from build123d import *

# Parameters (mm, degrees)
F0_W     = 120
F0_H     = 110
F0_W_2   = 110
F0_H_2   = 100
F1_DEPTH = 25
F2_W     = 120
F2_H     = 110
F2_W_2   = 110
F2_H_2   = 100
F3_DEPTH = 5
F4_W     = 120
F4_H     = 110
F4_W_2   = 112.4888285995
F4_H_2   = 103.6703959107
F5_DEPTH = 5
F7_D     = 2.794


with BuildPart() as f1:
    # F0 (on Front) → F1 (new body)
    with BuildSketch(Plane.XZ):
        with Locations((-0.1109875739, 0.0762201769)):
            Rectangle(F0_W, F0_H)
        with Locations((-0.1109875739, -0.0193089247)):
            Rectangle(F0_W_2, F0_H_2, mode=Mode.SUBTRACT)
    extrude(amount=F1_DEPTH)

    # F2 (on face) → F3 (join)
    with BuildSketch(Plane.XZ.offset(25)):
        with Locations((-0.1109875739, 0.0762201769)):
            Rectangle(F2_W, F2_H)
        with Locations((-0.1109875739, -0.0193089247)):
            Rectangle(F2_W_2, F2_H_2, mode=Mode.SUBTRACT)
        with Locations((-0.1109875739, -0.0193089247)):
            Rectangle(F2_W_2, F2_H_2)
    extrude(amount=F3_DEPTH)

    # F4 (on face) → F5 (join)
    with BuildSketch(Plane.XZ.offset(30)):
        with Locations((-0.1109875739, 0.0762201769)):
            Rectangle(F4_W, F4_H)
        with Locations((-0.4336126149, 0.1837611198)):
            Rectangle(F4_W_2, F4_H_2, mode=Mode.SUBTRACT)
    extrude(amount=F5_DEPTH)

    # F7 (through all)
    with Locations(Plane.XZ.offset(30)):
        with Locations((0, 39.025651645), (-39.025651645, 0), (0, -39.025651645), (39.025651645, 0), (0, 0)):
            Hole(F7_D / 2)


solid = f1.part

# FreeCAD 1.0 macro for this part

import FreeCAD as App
import Part
import Sketcher
Q = App.Units.Quantity


def add_polygon(sketch, points):
    """Adds a closed chain of lines whose ends are joined by coincident constraints."""
    first, n = sketch.GeometryCount, len(points)
    for a, b in zip(points, points[1:] + points[:1]):
        sketch.addGeometry(Part.LineSegment(App.Vector(*a, 0), App.Vector(*b, 0)), False)
    for i in range(n):
        sketch.addConstraint(Sketcher.Constraint("Coincident", first + i, 2, first + (i + 1) % n, 1))

doc = App.newDocument("Part")
body = doc.addObject("PartDesign::Body", "Body")

# Sketch on XZ plane
sketch1 = body.newObject("Sketcher::SketchObject", "Sketch")
sketch1.AttachmentSupport = (doc.getObject("XZ_Plane"), [""])
sketch1.MapMode = "FlatFace"
add_polygon(sketch1, [(-60, 55), (-60, -55), (60, -55), (60, 55)])  # lines 0-3
add_polygon(sketch1, [(55, -50), (-55, -50), (-55, 50), (55, 50)])  # lines 4-7
sketch1.addConstraint([
    Sketcher.Constraint("Vertical", 0),
    Sketcher.Constraint("Horizontal", 1),
    Sketcher.Constraint("Vertical", 2),
    Sketcher.Constraint("Horizontal", 3),
    Sketcher.Constraint("Horizontal", 4),
    Sketcher.Constraint("Vertical", 5),
    Sketcher.Constraint("Horizontal", 6),
    Sketcher.Constraint("Vertical", 7),
    Sketcher.Constraint("Equal", 6, 0),
    Sketcher.Constraint("DistanceX", 1, 1, 1, 2, Q("120 mm")),
    Sketcher.Constraint("DistanceX", 4, 2, 4, 1, Q("110 mm")),
    Sketcher.Constraint("DistanceY", 5, 1, 5, 2, Q("100 mm")),
    Sketcher.Constraint("DistanceX", 0, 2, 4, 2, Q("5 mm")),
    Sketcher.Constraint("DistanceY", 0, 2, -1, 1, Q("54.92378 mm")),
    Sketcher.Constraint("DistanceY", 4, 2, -1, 1, Q("50.019309 mm")),
    Sketcher.Constraint("DistanceX", 0, 2, -1, 1, Q("60.110988 mm")),
])
pad1 = body.newObject("PartDesign::Pad", "Pad")
pad1.Profile = sketch1
pad1.Length = 25

# Sketch on XZ plane
sketch2 = body.newObject("Sketcher::SketchObject", "Sketch001")
sketch2.AttachmentSupport = (doc.getObject("XZ_Plane"), [""])
sketch2.MapMode = "FlatFace"
sketch2.AttachmentOffset = App.Placement(App.Vector(0, 0, 25), App.Rotation())
add_polygon(sketch2, [(-60, 55), (-60, -55), (60, -55), (60, 55)])  # lines 0-3
sketch2.addConstraint([
    Sketcher.Constraint("Vertical", 0),
    Sketcher.Constraint("Horizontal", 1),
    Sketcher.Constraint("Vertical", 2),
    Sketcher.Constraint("Horizontal", 3),
    Sketcher.Constraint("DistanceX", 1, 1, 1, 2, Q("120 mm")),
    Sketcher.Constraint("DistanceY", 0, 2, 0, 1, Q("110 mm")),
    Sketcher.Constraint("DistanceY", 0, 2, -1, 1, Q("54.92378 mm")),
    Sketcher.Constraint("DistanceX", 0, 2, -1, 1, Q("60.110988 mm")),
])
pad2 = body.newObject("PartDesign::Pad", "Pad001")
pad2.Profile = sketch2
pad2.Length = 5

# Sketch on XZ plane
sketch3 = body.newObject("Sketcher::SketchObject", "Sketch002")
sketch3.AttachmentSupport = (doc.getObject("XZ_Plane"), [""])
sketch3.MapMode = "FlatFace"
sketch3.AttachmentOffset = App.Placement(App.Vector(0, 0, 30), App.Rotation())
add_polygon(sketch3, [(-60, 55), (-60, -55), (60, -55), (60, 55)])  # lines 0-3
add_polygon(sketch3, [(56, -52), (-57, -52), (-57, 52), (56, 52)])  # lines 4-7
sketch3.addConstraint([
    Sketcher.Constraint("Vertical", 0),
    Sketcher.Constraint("Horizontal", 1),
    Sketcher.Constraint("Vertical", 2),
    Sketcher.Constraint("Horizontal", 3),
    Sketcher.Constraint("Horizontal", 4),
    Sketcher.Constraint("Vertical", 5),
    Sketcher.Constraint("Horizontal", 6),
    Sketcher.Constraint("Vertical", 7),
    Sketcher.Constraint("DistanceX", 1, 1, 1, 2, Q("120 mm")),
    Sketcher.Constraint("DistanceY", 0, 2, 0, 1, Q("110 mm")),
    Sketcher.Constraint("DistanceX", 4, 2, 4, 1, Q("112.488829 mm")),
    Sketcher.Constraint("DistanceX", -1, 1, 6, 2, Q("55.810802 mm")),
    Sketcher.Constraint("DistanceY", 5, 1, 5, 2, Q("103.670396 mm")),
    Sketcher.Constraint("DistanceY", 0, 2, -1, 1, Q("54.92378 mm")),
    Sketcher.Constraint("DistanceY", -1, 1, 5, 2, Q("52.018959 mm")),
    Sketcher.Constraint("DistanceX", 0, 2, 4, 2, Q("3.432961 mm")),
])
pad3 = body.newObject("PartDesign::Pad", "Pad002")
pad3.Profile = sketch3
pad3.Length = 5

# Sketch on XZ plane
sketch4 = body.newObject("Sketcher::SketchObject", "Sketch003")
sketch4.AttachmentSupport = (doc.getObject("XZ_Plane"), [""])
sketch4.MapMode = "FlatFace"
sketch4.AttachmentOffset = App.Placement(App.Vector(0, 0, 30), App.Rotation())
sketch4.addGeometry([
    Part.Circle(App.Vector(0, 39, 0), App.Vector(0, 0, 1), 1.4),  # 0
    Part.Circle(App.Vector(-39, 0, 0), App.Vector(0, 0, 1), 1.4),  # 1
    Part.Circle(App.Vector(0, -39, 0), App.Vector(0, 0, 1), 1.4),  # 2
    Part.Circle(App.Vector(39, 0, 0), App.Vector(0, 0, 1), 1.4),  # 3
    Part.Circle(App.Vector(0, 0, 0), App.Vector(0, 0, 1), 1.4),  # 4
], False)
sketch4.addConstraint([
    Sketcher.Constraint("Coincident", 4, 3, -1, 1),
    Sketcher.Constraint("Equal", 0, 1),
    Sketcher.Constraint("Equal", 1, 2),
    Sketcher.Constraint("Equal", 2, 3),
    Sketcher.Constraint("Equal", 3, 4),
    Sketcher.Constraint("Symmetric", 0, 3, 2, 3, -1, 1),
    Sketcher.Constraint("Symmetric", 1, 3, 3, 3, -1, 1),
    Sketcher.Constraint("PointOnObject", 0, 3, -2),
    Sketcher.Constraint("PointOnObject", 1, 3, -1),
    Sketcher.Constraint("Diameter", 0, Q("2.794 mm")),
    Sketcher.Constraint("DistanceY", -1, 1, 0, 3, Q("39.025652 mm")),
    Sketcher.Constraint("DistanceX", 1, 3, -1, 1, Q("39.025652 mm")),
])
doc.recompute()
hole = body.newObject("PartDesign::Hole", "Hole")
hole.Profile = sketch4
hole.ThreadType = "None"
hole.Diameter = 2.794
hole.DepthType = "ThroughAll"

doc.recompute()
